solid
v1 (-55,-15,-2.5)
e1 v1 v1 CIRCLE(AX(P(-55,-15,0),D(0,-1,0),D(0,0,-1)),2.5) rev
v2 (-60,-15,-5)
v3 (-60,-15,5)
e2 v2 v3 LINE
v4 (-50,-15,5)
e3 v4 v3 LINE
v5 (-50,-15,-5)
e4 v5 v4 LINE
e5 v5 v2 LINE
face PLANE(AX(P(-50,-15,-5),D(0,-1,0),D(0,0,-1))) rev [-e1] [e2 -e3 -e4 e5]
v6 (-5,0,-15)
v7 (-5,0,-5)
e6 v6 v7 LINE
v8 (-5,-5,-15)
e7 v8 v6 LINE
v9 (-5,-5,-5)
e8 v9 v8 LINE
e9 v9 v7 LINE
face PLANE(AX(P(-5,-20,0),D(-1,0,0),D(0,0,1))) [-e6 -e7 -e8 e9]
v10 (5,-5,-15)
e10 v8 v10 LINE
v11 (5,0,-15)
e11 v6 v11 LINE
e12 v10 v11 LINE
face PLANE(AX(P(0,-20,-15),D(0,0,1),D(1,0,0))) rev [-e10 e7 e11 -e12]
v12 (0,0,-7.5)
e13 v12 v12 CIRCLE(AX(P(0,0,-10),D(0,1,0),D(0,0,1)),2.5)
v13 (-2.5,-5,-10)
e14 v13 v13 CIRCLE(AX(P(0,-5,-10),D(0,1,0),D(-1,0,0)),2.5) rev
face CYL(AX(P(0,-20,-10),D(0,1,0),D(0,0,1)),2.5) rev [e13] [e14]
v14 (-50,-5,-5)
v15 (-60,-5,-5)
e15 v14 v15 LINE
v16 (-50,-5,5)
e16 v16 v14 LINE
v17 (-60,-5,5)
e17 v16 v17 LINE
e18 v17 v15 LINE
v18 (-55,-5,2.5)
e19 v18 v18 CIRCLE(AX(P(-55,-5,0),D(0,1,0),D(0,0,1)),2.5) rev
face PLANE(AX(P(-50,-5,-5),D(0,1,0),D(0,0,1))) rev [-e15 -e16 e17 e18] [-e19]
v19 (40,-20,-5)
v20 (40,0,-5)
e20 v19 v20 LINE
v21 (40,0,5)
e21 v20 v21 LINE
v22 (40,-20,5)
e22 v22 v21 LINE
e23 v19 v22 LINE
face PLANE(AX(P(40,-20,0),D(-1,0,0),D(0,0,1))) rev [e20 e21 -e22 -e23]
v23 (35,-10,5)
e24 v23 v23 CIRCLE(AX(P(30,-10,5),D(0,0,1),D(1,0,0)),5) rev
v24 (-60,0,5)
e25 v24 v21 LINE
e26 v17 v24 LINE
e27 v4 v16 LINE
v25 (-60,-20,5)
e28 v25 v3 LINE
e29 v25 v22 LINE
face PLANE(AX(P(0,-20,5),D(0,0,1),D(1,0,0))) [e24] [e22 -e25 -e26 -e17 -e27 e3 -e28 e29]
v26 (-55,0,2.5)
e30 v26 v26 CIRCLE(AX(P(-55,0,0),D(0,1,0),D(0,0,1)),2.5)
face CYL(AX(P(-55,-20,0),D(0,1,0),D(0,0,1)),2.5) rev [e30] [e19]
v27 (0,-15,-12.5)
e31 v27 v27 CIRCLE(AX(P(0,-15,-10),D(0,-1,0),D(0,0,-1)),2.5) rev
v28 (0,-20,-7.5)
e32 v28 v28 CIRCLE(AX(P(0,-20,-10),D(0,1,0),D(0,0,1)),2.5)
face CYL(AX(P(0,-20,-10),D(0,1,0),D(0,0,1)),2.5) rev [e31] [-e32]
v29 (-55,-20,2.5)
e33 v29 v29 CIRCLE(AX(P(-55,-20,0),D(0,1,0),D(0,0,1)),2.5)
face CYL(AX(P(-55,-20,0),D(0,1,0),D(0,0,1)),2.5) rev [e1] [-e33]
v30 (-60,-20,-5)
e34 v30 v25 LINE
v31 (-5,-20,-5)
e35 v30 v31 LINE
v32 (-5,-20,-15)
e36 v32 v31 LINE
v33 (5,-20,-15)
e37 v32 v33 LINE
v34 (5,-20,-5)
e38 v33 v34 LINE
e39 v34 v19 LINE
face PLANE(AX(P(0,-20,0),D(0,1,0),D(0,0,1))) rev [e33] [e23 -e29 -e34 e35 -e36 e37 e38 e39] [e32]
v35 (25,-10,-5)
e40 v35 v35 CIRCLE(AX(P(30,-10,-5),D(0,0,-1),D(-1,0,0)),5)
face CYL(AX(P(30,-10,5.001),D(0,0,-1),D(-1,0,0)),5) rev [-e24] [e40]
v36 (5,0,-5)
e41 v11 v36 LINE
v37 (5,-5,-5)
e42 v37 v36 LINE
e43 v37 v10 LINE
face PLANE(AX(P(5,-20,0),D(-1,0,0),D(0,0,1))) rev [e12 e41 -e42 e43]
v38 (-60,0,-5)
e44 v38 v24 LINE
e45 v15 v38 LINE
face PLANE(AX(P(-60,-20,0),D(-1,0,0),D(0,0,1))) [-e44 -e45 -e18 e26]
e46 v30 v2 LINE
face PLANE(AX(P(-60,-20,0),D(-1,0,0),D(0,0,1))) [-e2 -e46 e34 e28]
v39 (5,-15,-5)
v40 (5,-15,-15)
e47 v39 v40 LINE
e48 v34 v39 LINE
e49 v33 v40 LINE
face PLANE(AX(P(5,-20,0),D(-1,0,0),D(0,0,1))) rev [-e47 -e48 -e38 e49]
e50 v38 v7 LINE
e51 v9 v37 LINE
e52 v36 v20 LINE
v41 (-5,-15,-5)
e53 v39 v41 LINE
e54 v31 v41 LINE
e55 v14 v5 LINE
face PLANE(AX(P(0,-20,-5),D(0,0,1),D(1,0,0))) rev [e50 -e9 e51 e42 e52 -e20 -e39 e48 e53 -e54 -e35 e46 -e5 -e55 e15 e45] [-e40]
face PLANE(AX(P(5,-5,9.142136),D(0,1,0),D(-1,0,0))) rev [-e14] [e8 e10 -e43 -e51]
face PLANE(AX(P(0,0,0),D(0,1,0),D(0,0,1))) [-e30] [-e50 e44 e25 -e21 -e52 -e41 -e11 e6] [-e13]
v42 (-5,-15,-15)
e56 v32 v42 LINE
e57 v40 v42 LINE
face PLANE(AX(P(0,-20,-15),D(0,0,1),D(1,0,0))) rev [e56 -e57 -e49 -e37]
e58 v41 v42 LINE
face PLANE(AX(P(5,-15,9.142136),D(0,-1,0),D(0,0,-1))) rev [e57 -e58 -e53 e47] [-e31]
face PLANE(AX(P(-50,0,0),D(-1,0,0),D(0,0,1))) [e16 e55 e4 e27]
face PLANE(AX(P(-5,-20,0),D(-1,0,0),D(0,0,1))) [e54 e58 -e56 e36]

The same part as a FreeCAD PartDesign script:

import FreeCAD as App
import Part
import Sketcher


def add_polygon(sketch, points):
    """Adds a closed chain of lines whose ends are joined by coincident constraints."""
    first, n = sketch.GeometryCount, len(points)
    for a, b in zip(points, points[1:] + points[:1]):
        sketch.addGeometry(Part.LineSegment(App.Vector(*a, 0), App.Vector(*b, 0)), False)
    for i in range(n):
        sketch.addConstraint(Sketcher.Constraint("Coincident", first + i, 2, first + (i + 1) % n, 1))

doc = App.newDocument("Part")
body = doc.addObject("PartDesign::Body", "Body")

sketch1 = body.newObject("Sketcher::SketchObject", "Sketch")
sketch1.AttachmentSupport = (doc.getObject("XZ_Plane"), [""])
sketch1.MapMode = "FlatFace"
add_polygon(sketch1, [(-60, -5), (-60, 5), (40, 5), (40, -5), (5, -5), (5, -15), (-5, -15), (-5, -5)])
sketch1.addGeometry(Part.Circle(App.Vector(-55, 0, 0), App.Vector(0, 0, 1), 2.5), False)
sketch1.addGeometry(Part.Circle(App.Vector(0, -10, 0), App.Vector(0, 0, 1), 2.5), False)
sketch1.addConstraint([
    Sketcher.Constraint("Vertical", 0),
    Sketcher.Constraint("Horizontal", 1),
    Sketcher.Constraint("Vertical", 2),
    Sketcher.Constraint("Horizontal", 3),
    Sketcher.Constraint("Vertical", 4),
    Sketcher.Constraint("Horizontal", 5),
    Sketcher.Constraint("Vertical", 6),
    Sketcher.Constraint("Horizontal", 7),
    Sketcher.Constraint("Equal", 8, 9),
    Sketcher.Constraint("Symmetric", 3, 2, 6, 2, -2),
    Sketcher.Constraint("PointOnObject", 8, 3, -1),
    Sketcher.Constraint("PointOnObject", 9, 3, -2),
    Sketcher.Constraint("Equal", 5, 0),
    Sketcher.Constraint("Equal", 2, 4),
    Sketcher.Constraint("Diameter", 8, 5.0),
    Sketcher.Constraint("DistanceX", 1, 1, 1, 2, 100.0),
    Sketcher.Constraint("DistanceX", 3, 2, 3, 1, 35.0),
    Sketcher.Constraint("DistanceX", 5, 2, 5, 1, 10.0),
    Sketcher.Constraint("DistanceX", 8, 3, -1, 1, 55.0),
    Sketcher.Constraint("DistanceY", 9, 3, -1, 1, 10.0),
    Sketcher.Constraint("DistanceY", -1, 1, 0, 2, 5.0),
])
pad1 = body.newObject("PartDesign::Pad", "Pad")
pad1.Profile = sketch1
pad1.Length = 20

sketch2 = body.newObject("Sketcher::SketchObject", "Sketch001")
sketch2.AttachmentSupport = (doc.getObject("YZ_Plane"), [""])
sketch2.MapMode = "FlatFace"
sketch2.AttachmentOffset = App.Placement(App.Vector(0, 0, -60), App.Rotation())
add_polygon(sketch2, [(-5, -5), (-15, -5), (-15, 5), (-5, 5)])
sketch2.addConstraint([
    Sketcher.Constraint("Horizontal", 0),
    Sketcher.Constraint("Vertical", 1),
    Sketcher.Constraint("Horizontal", 2),
    Sketcher.Constraint("Vertical", 3),
    Sketcher.Constraint("Equal", 2, 1),
    Sketcher.Constraint("DistanceX", 0, 2, 0, 1, 10.0),
    Sketcher.Constraint("DistanceX", 0, 2, -1, 1, 15.0),
    Sketcher.Constraint("DistanceY", 0, 2, -1, 1, 5.0),
])
pocket1 = body.newObject("PartDesign::Pocket", "Pocket")
pocket1.Profile = sketch2
pocket1.Length = 10
pocket1.Reversed = True

sketch3 = body.newObject("Sketcher::SketchObject", "Sketch002")
sketch3.AttachmentSupport = (doc.getObject("XY_Plane"), [""])
sketch3.MapMode = "FlatFace"
sketch3.AttachmentOffset = App.Placement(App.Vector(0, 0, -15), App.Rotation())
add_polygon(sketch3, [(5, -5), (5, -15), (-5, -15), (-5, -5)])
sketch3.addConstraint([
    Sketcher.Constraint("Vertical", 0),
    Sketcher.Constraint("Horizontal", 1),
    Sketcher.Constraint("Vertical", 2),
    Sketcher.Constraint("Horizontal", 3),
    Sketcher.Constraint("Equal", 3, 0),
    Sketcher.Constraint("DistanceX", 1, 2, 1, 1, 10.0),
    Sketcher.Constraint("DistanceX", -1, 1, 0, 2, 5.0),
    Sketcher.Constraint("DistanceY", 0, 2, -1, 1, 15.0),
])
pocket2 = body.newObject("PartDesign::Pocket", "Pocket001")
pocket2.Profile = sketch3
pocket2.Length = 10
pocket2.Reversed = True

sketch4 = body.newObject("Sketcher::SketchObject", "Sketch003")
sketch4.AttachmentSupport = (doc.getObject("XY_Plane"), [""])
sketch4.MapMode = "FlatFace"
sketch4.AttachmentOffset = App.Placement(App.Vector(0, 0, -5), App.Rotation())
sketch4.addGeometry(Part.Circle(App.Vector(30, -10, 0), App.Vector(0, 0, 1), 5), False)
sketch4.addConstraint([
    Sketcher.Constraint("Diameter", 0, 10.0),
    Sketcher.Constraint("DistanceX", -1, 1, 0, 3, 30.0),
    Sketcher.Constraint("DistanceY", 0, 3, -1, 1, 10.0),
])
pocket3 = body.newObject("PartDesign::Pocket", "Pocket002")
pocket3.Profile = sketch4
pocket3.Type = "UpToFirst"
pocket3.Reversed = True

doc.recompute()
